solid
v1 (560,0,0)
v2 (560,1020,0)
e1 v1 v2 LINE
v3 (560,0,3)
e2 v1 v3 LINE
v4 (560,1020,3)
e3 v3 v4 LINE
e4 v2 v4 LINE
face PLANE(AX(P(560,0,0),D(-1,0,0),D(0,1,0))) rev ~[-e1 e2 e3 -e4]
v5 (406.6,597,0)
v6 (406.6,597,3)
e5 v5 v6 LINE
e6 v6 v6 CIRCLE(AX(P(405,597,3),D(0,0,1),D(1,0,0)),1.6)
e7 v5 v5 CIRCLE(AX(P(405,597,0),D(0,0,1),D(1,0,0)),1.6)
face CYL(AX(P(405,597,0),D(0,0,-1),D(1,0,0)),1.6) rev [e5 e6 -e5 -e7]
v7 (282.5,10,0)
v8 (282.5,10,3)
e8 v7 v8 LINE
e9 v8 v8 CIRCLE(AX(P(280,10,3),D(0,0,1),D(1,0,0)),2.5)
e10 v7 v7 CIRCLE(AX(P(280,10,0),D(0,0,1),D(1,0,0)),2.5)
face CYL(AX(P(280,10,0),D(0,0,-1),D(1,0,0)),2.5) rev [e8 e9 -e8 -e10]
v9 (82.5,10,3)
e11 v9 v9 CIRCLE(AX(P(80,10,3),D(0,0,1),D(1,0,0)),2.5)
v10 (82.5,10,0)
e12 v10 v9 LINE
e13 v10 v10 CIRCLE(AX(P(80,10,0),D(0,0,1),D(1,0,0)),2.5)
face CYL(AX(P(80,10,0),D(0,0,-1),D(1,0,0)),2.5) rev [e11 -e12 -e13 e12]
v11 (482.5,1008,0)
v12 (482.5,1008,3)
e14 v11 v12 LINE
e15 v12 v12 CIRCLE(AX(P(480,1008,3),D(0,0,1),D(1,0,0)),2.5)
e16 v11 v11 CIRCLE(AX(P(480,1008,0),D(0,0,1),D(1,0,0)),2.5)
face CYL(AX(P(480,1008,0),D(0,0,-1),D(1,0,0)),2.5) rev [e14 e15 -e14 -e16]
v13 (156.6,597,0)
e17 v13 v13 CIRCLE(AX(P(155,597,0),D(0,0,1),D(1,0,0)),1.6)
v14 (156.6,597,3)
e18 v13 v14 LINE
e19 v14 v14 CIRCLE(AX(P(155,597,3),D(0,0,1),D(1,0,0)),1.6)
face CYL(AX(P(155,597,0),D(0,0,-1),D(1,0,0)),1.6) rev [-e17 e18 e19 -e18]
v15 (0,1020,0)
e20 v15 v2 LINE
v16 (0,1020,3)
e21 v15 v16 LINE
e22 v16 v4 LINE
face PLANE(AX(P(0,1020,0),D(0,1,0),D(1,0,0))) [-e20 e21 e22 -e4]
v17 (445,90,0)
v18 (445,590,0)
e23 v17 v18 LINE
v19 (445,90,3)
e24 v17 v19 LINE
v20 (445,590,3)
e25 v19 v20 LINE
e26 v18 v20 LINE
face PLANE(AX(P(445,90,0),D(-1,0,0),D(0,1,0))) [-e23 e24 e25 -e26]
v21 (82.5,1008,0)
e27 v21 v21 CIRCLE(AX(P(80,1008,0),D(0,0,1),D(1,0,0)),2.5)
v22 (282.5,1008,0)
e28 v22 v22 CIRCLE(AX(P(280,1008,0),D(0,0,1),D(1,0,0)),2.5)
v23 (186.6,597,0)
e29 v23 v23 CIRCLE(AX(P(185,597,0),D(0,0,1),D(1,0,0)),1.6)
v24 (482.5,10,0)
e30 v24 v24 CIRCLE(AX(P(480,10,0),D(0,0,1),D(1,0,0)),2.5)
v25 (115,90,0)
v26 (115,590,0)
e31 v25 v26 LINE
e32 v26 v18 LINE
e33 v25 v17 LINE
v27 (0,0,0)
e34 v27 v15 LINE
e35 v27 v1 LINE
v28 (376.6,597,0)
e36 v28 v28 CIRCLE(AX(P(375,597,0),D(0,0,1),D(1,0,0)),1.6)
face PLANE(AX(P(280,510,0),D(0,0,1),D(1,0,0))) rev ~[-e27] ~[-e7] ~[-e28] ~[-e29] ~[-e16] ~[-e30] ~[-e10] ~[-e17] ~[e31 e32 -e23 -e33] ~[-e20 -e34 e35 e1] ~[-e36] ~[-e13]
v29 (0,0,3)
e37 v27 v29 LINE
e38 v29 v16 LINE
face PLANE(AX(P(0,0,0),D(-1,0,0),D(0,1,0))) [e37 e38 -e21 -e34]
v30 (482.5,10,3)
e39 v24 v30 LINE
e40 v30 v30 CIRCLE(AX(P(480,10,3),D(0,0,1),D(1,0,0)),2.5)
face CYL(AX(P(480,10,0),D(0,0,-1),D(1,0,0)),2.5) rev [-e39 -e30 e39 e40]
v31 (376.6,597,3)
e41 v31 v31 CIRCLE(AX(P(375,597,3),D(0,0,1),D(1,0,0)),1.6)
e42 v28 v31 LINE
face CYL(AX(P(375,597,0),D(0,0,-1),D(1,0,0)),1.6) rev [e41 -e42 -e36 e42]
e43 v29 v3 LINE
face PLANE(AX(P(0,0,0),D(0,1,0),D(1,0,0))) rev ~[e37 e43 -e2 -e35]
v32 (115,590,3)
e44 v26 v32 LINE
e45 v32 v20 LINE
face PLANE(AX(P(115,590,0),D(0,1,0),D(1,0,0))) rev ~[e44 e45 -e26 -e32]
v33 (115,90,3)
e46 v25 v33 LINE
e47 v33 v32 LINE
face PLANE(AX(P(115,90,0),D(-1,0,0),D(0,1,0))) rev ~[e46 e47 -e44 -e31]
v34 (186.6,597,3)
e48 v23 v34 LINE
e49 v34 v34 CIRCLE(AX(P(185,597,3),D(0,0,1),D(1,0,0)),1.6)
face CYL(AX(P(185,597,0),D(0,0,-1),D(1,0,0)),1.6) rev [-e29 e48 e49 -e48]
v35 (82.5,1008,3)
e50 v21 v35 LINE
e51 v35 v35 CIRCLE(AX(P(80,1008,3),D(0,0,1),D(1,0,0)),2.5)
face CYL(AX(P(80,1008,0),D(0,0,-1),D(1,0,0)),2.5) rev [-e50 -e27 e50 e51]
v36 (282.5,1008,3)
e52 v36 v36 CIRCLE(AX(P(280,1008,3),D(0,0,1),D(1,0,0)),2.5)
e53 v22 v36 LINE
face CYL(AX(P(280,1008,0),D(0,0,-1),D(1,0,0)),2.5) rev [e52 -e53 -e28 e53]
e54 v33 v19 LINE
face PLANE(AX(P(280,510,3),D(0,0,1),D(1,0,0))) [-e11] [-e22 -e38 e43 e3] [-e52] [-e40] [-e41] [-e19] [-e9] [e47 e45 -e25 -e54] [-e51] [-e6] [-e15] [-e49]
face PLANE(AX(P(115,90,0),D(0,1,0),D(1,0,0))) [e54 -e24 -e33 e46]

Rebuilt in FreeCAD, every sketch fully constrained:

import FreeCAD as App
import Part
import Sketcher
Q = App.Units.Quantity

doc = App.newDocument("Part")
body = doc.addObject("PartDesign::Body", "Body")

# Sketch on XY plane
sketch1 = body.newObject("Sketcher::SketchObject", "Sketch")
sketch1.AttachmentSupport = (doc.getObject("XY_Plane"), [""])
sketch1.MapMode = "FlatFace"
sketch1.addGeometry(Part.LineSegment(App.Vector(0, 1020, 0), App.Vector(0, 0, 0)), False)
sketch1.addGeometry(Part.LineSegment(App.Vector(0, 0, 0), App.Vector(560, 0, 0)), False)
sketch1.addGeometry(Part.LineSegment(App.Vector(560, 0, 0), App.Vector(560, 1020, 0)), False)
sketch1.addGeometry(Part.LineSegment(App.Vector(560, 1020, 0), App.Vector(0, 1020, 0)), False)
sketch1.addGeometry(Part.Circle(App.Vector(80, 10, 0), App.Vector(0, 0, 1), 2.5), False)
sketch1.addGeometry(Part.Circle(App.Vector(280, 10, 0), App.Vector(0, 0, 1), 2.5), False)
sketch1.addGeometry(Part.Circle(App.Vector(480, 10, 0), App.Vector(0, 0, 1), 2.5), False)
sketch1.addGeometry(Part.LineSegment(App.Vector(445, 90, 0), App.Vector(115, 90, 0)), False)
sketch1.addGeometry(Part.LineSegment(App.Vector(115, 90, 0), App.Vector(115, 590, 0)), False)
sketch1.addGeometry(Part.LineSegment(App.Vector(115, 590, 0), App.Vector(445, 590, 0)), False)
sketch1.addGeometry(Part.LineSegment(App.Vector(445, 590, 0), App.Vector(445, 90, 0)), False)
sketch1.addGeometry(Part.Circle(App.Vector(155, 597, 0), App.Vector(0, 0, 1), 1.6), False)
sketch1.addGeometry(Part.Circle(App.Vector(185, 597, 0), App.Vector(0, 0, 1), 1.6), False)
sketch1.addGeometry(Part.Circle(App.Vector(80, 1008, 0), App.Vector(0, 0, 1), 2.5), False)
sketch1.addGeometry(Part.Circle(App.Vector(375, 597, 0), App.Vector(0, 0, 1), 1.6), False)
sketch1.addGeometry(Part.Circle(App.Vector(405, 597, 0), App.Vector(0, 0, 1), 1.6), False)
sketch1.addGeometry(Part.Circle(App.Vector(280, 1008, 0), App.Vector(0, 0, 1), 2.5), False)
sketch1.addGeometry(Part.Circle(App.Vector(480, 1008, 0), App.Vector(0, 0, 1), 2.5), False)
sketch1.addConstraint(Sketcher.Constraint("Coincident", 0, 2, 1, 1))
sketch1.addConstraint(Sketcher.Constraint("Coincident", 1, 2, 2, 1))
sketch1.addConstraint(Sketcher.Constraint("Coincident", 2, 2, 3, 1))
sketch1.addConstraint(Sketcher.Constraint("Coincident", 3, 2, 0, 1))
sketch1.addConstraint(Sketcher.Constraint("Coincident", 7, 2, 8, 1))
sketch1.addConstraint(Sketcher.Constraint("Coincident", 8, 2, 9, 1))
sketch1.addConstraint(Sketcher.Constraint("Coincident", 9, 2, 10, 1))
sketch1.addConstraint(Sketcher.Constraint("Coincident", 10, 2, 7, 1))
sketch1.addConstraint(Sketcher.Constraint("Vertical", 0))
sketch1.addConstraint(Sketcher.Constraint("Horizontal", 1))
sketch1.addConstraint(Sketcher.Constraint("Vertical", 2))
sketch1.addConstraint(Sketcher.Constraint("Horizontal", 3))
sketch1.addConstraint(Sketcher.Constraint("Horizontal", 7))
sketch1.addConstraint(Sketcher.Constraint("Vertical", 8))
sketch1.addConstraint(Sketcher.Constraint("Horizontal", 9))
sketch1.addConstraint(Sketcher.Constraint("Vertical", 10))
sketch1.addConstraint(Sketcher.Constraint("Coincident", 0, 2, -1, 1))
sketch1.addConstraint(Sketcher.Constraint("Equal", 4, 5))
sketch1.addConstraint(Sketcher.Constraint("Equal", 5, 6))
sketch1.addConstraint(Sketcher.Constraint("Equal", 11, 12))
sketch1.addConstraint(Sketcher.Constraint("Equal", 6, 13))
sketch1.addConstraint(Sketcher.Constraint("Equal", 12, 14))
sketch1.addConstraint(Sketcher.Constraint("Equal", 14, 15))
sketch1.addConstraint(Sketcher.Constraint("Equal", 13, 16))
sketch1.addConstraint(Sketcher.Constraint("Equal", 16, 17))
sketch1.addConstraint(Sketcher.Constraint("Horizontal", 4, 3, 5, 3))
sketch1.addConstraint(Sketcher.Constraint("Horizontal", 5, 3, 6, 3))
sketch1.addConstraint(Sketcher.Constraint("Horizontal", 11, 3, 12, 3))
sketch1.addConstraint(Sketcher.Constraint("Horizontal", 12, 3, 14, 3))
sketch1.addConstraint(Sketcher.Constraint("Horizontal", 14, 3, 15, 3))
sketch1.addConstraint(Sketcher.Constraint("Horizontal", 13, 3, 16, 3))
sketch1.addConstraint(Sketcher.Constraint("Horizontal", 16, 3, 17, 3))
sketch1.addConstraint(Sketcher.Constraint("Vertical", 4, 3, 13, 3))
sketch1.addConstraint(Sketcher.Constraint("Vertical", 5, 3, 16, 3))
sketch1.addConstraint(Sketcher.Constraint("Vertical", 6, 3, 17, 3))
sketch1.addConstraint(Sketcher.Constraint("Diameter", 4, Q("5 mm")))
sketch1.addConstraint(Sketcher.Constraint("Diameter", 11, Q("3.2 mm")))
sketch1.addConstraint(Sketcher.Constraint("DistanceX", 1, 1, 1, 2, Q("560 mm")))
sketch1.addConstraint(Sketcher.Constraint("DistanceX", 7, 2, 7, 1, Q("330 mm")))
sketch1.addConstraint(Sketcher.Constraint("DistanceY", 0, 2, 0, 1, Q("1020 mm")))
sketch1.addConstraint(Sketcher.Constraint("DistanceY", 8, 1, 8, 2, Q("500 mm")))
sketch1.addConstraint(Sketcher.Constraint("DistanceX", -1, 1, 4, 3, Q("80 mm")))
sketch1.addConstraint(Sketcher.Constraint("DistanceY", -1, 1, 4, 3, Q("10 mm")))
sketch1.addConstraint(Sketcher.Constraint("DistanceX", -1, 1, 5, 3, Q("280 mm")))
sketch1.addConstraint(Sketcher.Constraint("DistanceX", -1, 1, 6, 3, Q("480 mm")))
sketch1.addConstraint(Sketcher.Constraint("DistanceX", -1, 1, 11, 3, Q("155 mm")))
sketch1.addConstraint(Sketcher.Constraint("DistanceY", -1, 1, 11, 3, Q("597 mm")))
sketch1.addConstraint(Sketcher.Constraint("DistanceX", -1, 1, 12, 3, Q("185 mm")))
sketch1.addConstraint(Sketcher.Constraint("DistanceY", -1, 1, 13, 3, Q("1008 mm")))
sketch1.addConstraint(Sketcher.Constraint("DistanceX", -1, 1, 14, 3, Q("375 mm")))
sketch1.addConstraint(Sketcher.Constraint("DistanceX", -1, 1, 15, 3, Q("405 mm")))
sketch1.addConstraint(Sketcher.Constraint("DistanceX", -1, 1, 7, 2, Q("115 mm")))
sketch1.addConstraint(Sketcher.Constraint("DistanceY", -1, 1, 7, 2, Q("90 mm")))
pad1 = body.newObject("PartDesign::Pad", "Pad")
pad1.Profile = sketch1
pad1.Length = 3

doc.recompute()
